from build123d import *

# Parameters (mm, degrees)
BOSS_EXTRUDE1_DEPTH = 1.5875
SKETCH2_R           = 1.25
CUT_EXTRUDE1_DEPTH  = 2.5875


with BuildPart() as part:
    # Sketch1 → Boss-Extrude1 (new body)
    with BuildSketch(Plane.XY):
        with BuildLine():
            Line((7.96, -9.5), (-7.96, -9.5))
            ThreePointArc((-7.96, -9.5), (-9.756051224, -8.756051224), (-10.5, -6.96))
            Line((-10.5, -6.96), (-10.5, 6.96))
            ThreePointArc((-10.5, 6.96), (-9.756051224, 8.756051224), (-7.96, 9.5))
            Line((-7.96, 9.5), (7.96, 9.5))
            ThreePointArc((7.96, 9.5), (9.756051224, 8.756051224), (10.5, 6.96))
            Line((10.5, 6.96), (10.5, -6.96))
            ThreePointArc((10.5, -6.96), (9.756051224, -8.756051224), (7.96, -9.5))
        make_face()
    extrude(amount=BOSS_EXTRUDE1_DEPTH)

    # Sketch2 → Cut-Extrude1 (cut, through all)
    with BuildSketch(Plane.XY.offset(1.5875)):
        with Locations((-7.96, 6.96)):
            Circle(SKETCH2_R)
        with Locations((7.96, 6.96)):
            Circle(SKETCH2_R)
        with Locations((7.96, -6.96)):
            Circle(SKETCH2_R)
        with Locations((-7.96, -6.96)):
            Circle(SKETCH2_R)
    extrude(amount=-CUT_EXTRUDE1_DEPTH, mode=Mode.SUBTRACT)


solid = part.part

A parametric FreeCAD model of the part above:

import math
import FreeCAD as App
import Part
import Sketcher

V = App.Vector
Q = App.Units.Quantity

doc = App.newDocument("Part")
body = doc.addObject("PartDesign::Body", "Body")

sketch1 = doc.addObject("Sketcher::SketchObject", "Sketch")
body.addObject(sketch1)
sketch1.AttachmentSupport = (doc.XY_Plane, [""])
sketch1.MapMode = "FlatFace"
sketch1.addGeometry([
    Part.LineSegment(V(-8, -9.5, 0), V(8, -9.5, 0)),
    Part.ArcOfCircle(Part.Circle(V(8, -7, 0), V(0, 0, 1), 2.5), math.radians(-90), math.radians(0)),
    Part.LineSegment(V(10.5, -7, 0), V(10.5, 7, 0)),
    Part.ArcOfCircle(Part.Circle(V(8, 7, 0), V(0, 0, 1), 2.5), math.radians(0), math.radians(90)),
    Part.LineSegment(V(8, 9.5, 0), V(-8, 9.5, 0)),
    Part.ArcOfCircle(Part.Circle(V(-8, 7, 0), V(0, 0, 1), 2.5), math.radians(90), math.radians(180)),
    Part.LineSegment(V(-10.5, 7, 0), V(-10.5, -7, 0)),
    Part.ArcOfCircle(Part.Circle(V(-8, -7, 0), V(0, 0, 1), 2.5), math.radians(-180), math.radians(-90)),
], False)
sketch1.addConstraint([
    Sketcher.Constraint("Tangent", 0, 2, 1, 1),
    Sketcher.Constraint("Tangent", 1, 2, 2, 1),
    Sketcher.Constraint("Tangent", 2, 2, 3, 1),
    Sketcher.Constraint("Tangent", 3, 2, 4, 1),
    Sketcher.Constraint("Tangent", 4, 2, 5, 1),
    Sketcher.Constraint("Tangent", 5, 2, 6, 1),
    Sketcher.Constraint("Tangent", 6, 2, 7, 1),
    Sketcher.Constraint("Tangent", 7, 2, 0, 1),
    Sketcher.Constraint("Horizontal", 0),
    Sketcher.Constraint("Vertical", 2),
    Sketcher.Constraint("Horizontal", 4),
    Sketcher.Constraint("Vertical", 6),
    Sketcher.Constraint("Equal", 1, 3),
    Sketcher.Constraint("Equal", 3, 5),
    Sketcher.Constraint("Equal", 5, 7),
    Sketcher.Constraint("Symmetric", 1, 3, 5, 3, -1, 1),
    Sketcher.Constraint("Radius", 1, Q("0.1 in")),
    Sketcher.Constraint("DistanceX", 0, 1, 0, 2, 15.92),
    Sketcher.Constraint("DistanceY", 2, 1, 2, 2, 13.92),
])
pad1 = doc.addObject("PartDesign::Pad", "Pad")
body.addObject(pad1)
pad1.Profile = sketch1
pad1.Length = Q("0.0625 in")

sketch2 = doc.addObject("Sketcher::SketchObject", "Sketch001")
body.addObject(sketch2)
sketch2.AttachmentSupport = (doc.XY_Plane, [""])
sketch2.MapMode = "FlatFace"
sketch2.AttachmentOffset = App.Placement(V(0, 0, 0.0625 * 25.4), App.Rotation())
sketch2.addGeometry([
    Part.Circle(V(-8, 7, 0), V(0, 0, 1), 1.2),
    Part.Circle(V(8, 7, 0), V(0, 0, 1), 1.2),
    Part.Circle(V(8, -7, 0), V(0, 0, 1), 1.2),
    Part.Circle(V(-8, -7, 0), V(0, 0, 1), 1.2),
], False)
sketch2.addConstraint([
    Sketcher.Constraint("Equal", 0, 1),
    Sketcher.Constraint("Equal", 1, 2),
    Sketcher.Constraint("Equal", 2, 3),
    Sketcher.Constraint("Symmetric", 0, 3, 2, 3, -1, 1),
    Sketcher.Constraint("Symmetric", 1, 3, 3, 3, -1, 1),
    Sketcher.Constraint("Symmetric", 0, 3, 1, 3, -2),
    Sketcher.Constraint("Diameter", 0, 2.5),
    Sketcher.Constraint("DistanceX", 0, 3, -1, 1, 7.96),
    Sketcher.Constraint("DistanceY", -1, 1, 0, 3, 6.96),
])
pocket1 = doc.addObject("PartDesign::Pocket", "Pocket")
body.addObject(pocket1)
pocket1.Profile = sketch2
pocket1.Type = "ThroughAll"

doc.recompute()
